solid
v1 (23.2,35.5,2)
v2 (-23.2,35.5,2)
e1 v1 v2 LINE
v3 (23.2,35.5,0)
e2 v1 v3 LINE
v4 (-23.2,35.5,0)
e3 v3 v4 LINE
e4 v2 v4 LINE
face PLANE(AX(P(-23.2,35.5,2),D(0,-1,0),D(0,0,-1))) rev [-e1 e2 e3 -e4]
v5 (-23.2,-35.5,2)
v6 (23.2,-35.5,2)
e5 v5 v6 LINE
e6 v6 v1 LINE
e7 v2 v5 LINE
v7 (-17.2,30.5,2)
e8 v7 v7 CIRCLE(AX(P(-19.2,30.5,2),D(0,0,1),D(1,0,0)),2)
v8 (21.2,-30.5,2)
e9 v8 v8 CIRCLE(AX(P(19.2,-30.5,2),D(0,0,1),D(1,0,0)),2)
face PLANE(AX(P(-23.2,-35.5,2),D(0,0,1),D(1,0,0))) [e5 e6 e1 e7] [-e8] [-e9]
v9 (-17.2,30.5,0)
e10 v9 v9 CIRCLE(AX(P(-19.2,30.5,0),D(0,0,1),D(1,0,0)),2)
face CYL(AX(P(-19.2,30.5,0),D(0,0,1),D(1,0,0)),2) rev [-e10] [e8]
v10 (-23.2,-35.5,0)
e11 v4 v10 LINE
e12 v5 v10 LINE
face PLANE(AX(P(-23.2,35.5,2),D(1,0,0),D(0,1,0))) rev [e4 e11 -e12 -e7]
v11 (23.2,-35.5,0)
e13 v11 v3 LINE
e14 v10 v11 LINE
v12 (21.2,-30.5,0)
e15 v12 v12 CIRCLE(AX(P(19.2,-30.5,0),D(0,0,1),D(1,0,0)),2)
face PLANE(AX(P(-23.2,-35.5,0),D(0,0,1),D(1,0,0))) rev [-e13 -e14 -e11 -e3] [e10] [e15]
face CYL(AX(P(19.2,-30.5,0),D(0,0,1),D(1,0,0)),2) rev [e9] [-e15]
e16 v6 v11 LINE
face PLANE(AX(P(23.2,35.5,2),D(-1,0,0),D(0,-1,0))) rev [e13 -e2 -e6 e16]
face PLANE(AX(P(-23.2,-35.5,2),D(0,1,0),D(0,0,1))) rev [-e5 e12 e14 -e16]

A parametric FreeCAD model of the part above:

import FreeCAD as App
import Part
import Sketcher

doc = App.newDocument("Part")
body = doc.addObject("PartDesign::Body", "Body")

# Sketch on XY plane
sketch1 = doc.addObject("Sketcher::SketchObject", "Sketch")
body.addObject(sketch1)
sketch1.AttachmentSupport = (doc.XY_Plane, [""])
sketch1.MapMode = "FlatFace"
sketch1.addGeometry([
    Part.LineSegment(App.Vector(-23.2, 35.5, 0), App.Vector(-23.2, -35.5, 0)),
    Part.LineSegment(App.Vector(-23.2, -35.5, 0), App.Vector(23.2, -35.5, 0)),
    Part.LineSegment(App.Vector(23.2, -35.5, 0), App.Vector(23.2, 35.5, 0)),
    Part.LineSegment(App.Vector(23.2, 35.5, 0), App.Vector(-23.2, 35.5, 0)),
], False)
sketch1.addConstraint([
    Sketcher.Constraint("Coincident", 0, 2, 1, 1),
    Sketcher.Constraint("Coincident", 1, 2, 2, 1),
    Sketcher.Constraint("Coincident", 2, 2, 3, 1),
    Sketcher.Constraint("Coincident", 3, 2, 0, 1),
    Sketcher.Constraint("Vertical", 0),
    Sketcher.Constraint("Horizontal", 1),
    Sketcher.Constraint("Vertical", 2),
    Sketcher.Constraint("Horizontal", 3),
    Sketcher.Constraint("Symmetric", 0, 2, 2, 2, -1, 1),
    Sketcher.Constraint("DistanceY", 0, 2, 0, 1, 71.0),
    Sketcher.Constraint("DistanceX", 1, 1, 1, 2, 46.4),
])
pad1 = doc.addObject("PartDesign::Pad", "Pad")
body.addObject(pad1)
pad1.Profile = sketch1
pad1.Length = 2

# Sketch on XY plane
sketch2 = doc.addObject("Sketcher::SketchObject", "Sketch001")
body.addObject(sketch2)
sketch2.AttachmentSupport = (doc.XY_Plane, [""])
sketch2.MapMode = "FlatFace"
sketch2.AttachmentOffset = App.Placement(App.Vector(0, 0, 2), App.Rotation())
sketch2.addGeometry([
    Part.Circle(App.Vector(-19.2, 30.5, 0), App.Vector(0, 0, 1), 2),
    Part.Circle(App.Vector(19.2, -30.5, 0), App.Vector(0, 0, 1), 2),
], False)
sketch2.addConstraint([
    Sketcher.Constraint("Equal", 0, 1),
    Sketcher.Constraint("Symmetric", 0, 3, 1, 3, -1, 1),
    Sketcher.Constraint("Diameter", 0, 4.0),
    Sketcher.Constraint("DistanceY", 1, 3, 0, 3, 61.0),
    Sketcher.Constraint("DistanceX", 0, 3, -1, 1, 19.2),
])
pocket1 = doc.addObject("PartDesign::Pocket", "Pocket")
body.addObject(pocket1)
pocket1.Profile = sketch2
pocket1.Type = "ThroughAll"

doc.recompute()
